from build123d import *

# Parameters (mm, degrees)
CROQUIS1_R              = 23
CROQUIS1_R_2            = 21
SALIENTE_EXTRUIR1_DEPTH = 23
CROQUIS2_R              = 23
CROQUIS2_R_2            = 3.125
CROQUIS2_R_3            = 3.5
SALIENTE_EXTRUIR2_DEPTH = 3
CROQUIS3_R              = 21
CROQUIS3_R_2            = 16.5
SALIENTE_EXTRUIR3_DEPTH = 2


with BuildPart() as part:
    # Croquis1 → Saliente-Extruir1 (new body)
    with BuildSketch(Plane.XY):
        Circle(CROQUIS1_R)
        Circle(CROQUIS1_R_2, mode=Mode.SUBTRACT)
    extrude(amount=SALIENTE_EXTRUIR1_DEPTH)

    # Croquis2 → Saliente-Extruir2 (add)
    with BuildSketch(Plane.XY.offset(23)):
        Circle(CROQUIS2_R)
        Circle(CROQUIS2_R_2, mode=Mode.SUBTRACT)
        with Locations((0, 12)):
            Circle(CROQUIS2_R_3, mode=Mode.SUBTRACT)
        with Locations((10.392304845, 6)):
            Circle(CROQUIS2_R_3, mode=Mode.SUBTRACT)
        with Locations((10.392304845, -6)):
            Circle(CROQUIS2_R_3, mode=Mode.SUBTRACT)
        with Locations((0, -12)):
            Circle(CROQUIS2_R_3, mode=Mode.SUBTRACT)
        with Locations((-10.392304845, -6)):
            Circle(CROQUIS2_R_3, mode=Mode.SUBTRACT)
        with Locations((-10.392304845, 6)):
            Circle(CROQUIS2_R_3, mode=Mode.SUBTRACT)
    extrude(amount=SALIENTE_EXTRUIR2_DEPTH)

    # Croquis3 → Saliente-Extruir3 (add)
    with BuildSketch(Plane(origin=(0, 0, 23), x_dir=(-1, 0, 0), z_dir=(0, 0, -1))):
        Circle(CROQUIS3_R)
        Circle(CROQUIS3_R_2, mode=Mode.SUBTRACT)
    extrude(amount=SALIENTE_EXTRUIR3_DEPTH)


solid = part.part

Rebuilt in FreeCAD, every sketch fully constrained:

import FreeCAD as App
import Part
import Sketcher
from FreeCAD import Vector

doc = App.newDocument("Part")
body = doc.addObject("PartDesign::Body", "Body")

sketch1 = body.newObject("Sketcher::SketchObject", "Sketch")
sketch1.AttachmentSupport = (doc.getObject("XY_Plane"), [""])
sketch1.MapMode = "FlatFace"
sketch1.addGeometry([
    Part.Circle(Vector(0, 0, 0), Vector(0, 0, 1), 23),
    Part.Circle(Vector(0, 0, 0), Vector(0, 0, 1), 21),
], False)
sketch1.addConstraint([
    Sketcher.Constraint("Coincident", 0, 3, -1, 1),
    Sketcher.Constraint("Coincident", 1, 3, -1, 1),
    Sketcher.Constraint("Diameter", 0, 46.0),
    Sketcher.Constraint("Diameter", 1, 42.0),
])
pad1 = body.newObject("PartDesign::Pad", "Pad")
pad1.Profile = sketch1
pad1.Length = 23

sketch2 = body.newObject("Sketcher::SketchObject", "Sketch001")
sketch2.AttachmentSupport = (doc.getObject("XY_Plane"), [""])
sketch2.MapMode = "FlatFace"
sketch2.AttachmentOffset = App.Placement(Vector(0, 0, 23), App.Rotation())
sketch2.addGeometry([
    Part.Circle(Vector(0, 0, 0), Vector(0, 0, 1), 23),
    Part.Circle(Vector(-10.4, -6, 0), Vector(0, 0, 1), 3.5),
    Part.Circle(Vector(0, -12, 0), Vector(0, 0, 1), 3.5),
    Part.Circle(Vector(10.4, -6, 0), Vector(0, 0, 1), 3.5),
    Part.Circle(Vector(-10.4, 6, 0), Vector(0, 0, 1), 3.5),
    Part.Circle(Vector(0, 0, 0), Vector(0, 0, 1), 3.1),
    Part.Circle(Vector(10.4, 6, 0), Vector(0, 0, 1), 3.5),
    Part.Circle(Vector(0, 12, 0), Vector(0, 0, 1), 3.5),
], False)
sketch2.addConstraint([
    Sketcher.Constraint("Coincident", 0, 3, -1, 1),
    Sketcher.Constraint("Coincident", 5, 3, -1, 1),
    Sketcher.Constraint("Equal", 1, 2),
    Sketcher.Constraint("Equal", 2, 3),
    Sketcher.Constraint("Equal", 3, 4),
    Sketcher.Constraint("Equal", 4, 6),
    Sketcher.Constraint("Equal", 6, 7),
    Sketcher.Constraint("Symmetric", 3, 3, 4, 3, -1, 1),
    Sketcher.Constraint("Symmetric", 1, 3, 6, 3, -1, 1),
    Sketcher.Constraint("Symmetric", 2, 3, 7, 3, -1, 1),
    Sketcher.Constraint("Symmetric", 1, 3, 3, 3, -2),
    Sketcher.Constraint("PointOnObject", 2, 3, -2),
    Sketcher.Constraint("Diameter", 0, 46.0),
    Sketcher.Constraint("Diameter", 1, 7.0),
    Sketcher.Constraint("Diameter", 5, 6.25),
    Sketcher.Constraint("DistanceY", 1, 3, -1, 1, 6.0),
    Sketcher.Constraint("DistanceY", 2, 3, -1, 1, 12.0),
    Sketcher.Constraint("DistanceX", 1, 3, 3, 3, 20.78461),
])
pad2 = body.newObject("PartDesign::Pad", "Pad001")
pad2.Profile = sketch2
pad2.Length = 3

sketch3 = body.newObject("Sketcher::SketchObject", "Sketch002")
sketch3.AttachmentSupport = (doc.getObject("XY_Plane"), [""])
sketch3.MapMode = "FlatFace"
sketch3.AttachmentOffset = App.Placement(Vector(0, 0, 23), App.Rotation())
sketch3.addGeometry([
    Part.Circle(Vector(0, 0, 0), Vector(0, 0, 1), 21),
    Part.Circle(Vector(0, 0, 0), Vector(0, 0, 1), 16),
], False)
sketch3.addConstraint([
    Sketcher.Constraint("Coincident", 0, 3, -1, 1),
    Sketcher.Constraint("Coincident", 1, 3, -1, 1),
    Sketcher.Constraint("Diameter", 0, 42.0),
    Sketcher.Constraint("Diameter", 1, 33.0),
])
pad3 = body.newObject("PartDesign::Pad", "Pad002")
pad3.Profile = sketch3
pad3.Length = 2
pad3.Reversed = True

doc.recompute()
